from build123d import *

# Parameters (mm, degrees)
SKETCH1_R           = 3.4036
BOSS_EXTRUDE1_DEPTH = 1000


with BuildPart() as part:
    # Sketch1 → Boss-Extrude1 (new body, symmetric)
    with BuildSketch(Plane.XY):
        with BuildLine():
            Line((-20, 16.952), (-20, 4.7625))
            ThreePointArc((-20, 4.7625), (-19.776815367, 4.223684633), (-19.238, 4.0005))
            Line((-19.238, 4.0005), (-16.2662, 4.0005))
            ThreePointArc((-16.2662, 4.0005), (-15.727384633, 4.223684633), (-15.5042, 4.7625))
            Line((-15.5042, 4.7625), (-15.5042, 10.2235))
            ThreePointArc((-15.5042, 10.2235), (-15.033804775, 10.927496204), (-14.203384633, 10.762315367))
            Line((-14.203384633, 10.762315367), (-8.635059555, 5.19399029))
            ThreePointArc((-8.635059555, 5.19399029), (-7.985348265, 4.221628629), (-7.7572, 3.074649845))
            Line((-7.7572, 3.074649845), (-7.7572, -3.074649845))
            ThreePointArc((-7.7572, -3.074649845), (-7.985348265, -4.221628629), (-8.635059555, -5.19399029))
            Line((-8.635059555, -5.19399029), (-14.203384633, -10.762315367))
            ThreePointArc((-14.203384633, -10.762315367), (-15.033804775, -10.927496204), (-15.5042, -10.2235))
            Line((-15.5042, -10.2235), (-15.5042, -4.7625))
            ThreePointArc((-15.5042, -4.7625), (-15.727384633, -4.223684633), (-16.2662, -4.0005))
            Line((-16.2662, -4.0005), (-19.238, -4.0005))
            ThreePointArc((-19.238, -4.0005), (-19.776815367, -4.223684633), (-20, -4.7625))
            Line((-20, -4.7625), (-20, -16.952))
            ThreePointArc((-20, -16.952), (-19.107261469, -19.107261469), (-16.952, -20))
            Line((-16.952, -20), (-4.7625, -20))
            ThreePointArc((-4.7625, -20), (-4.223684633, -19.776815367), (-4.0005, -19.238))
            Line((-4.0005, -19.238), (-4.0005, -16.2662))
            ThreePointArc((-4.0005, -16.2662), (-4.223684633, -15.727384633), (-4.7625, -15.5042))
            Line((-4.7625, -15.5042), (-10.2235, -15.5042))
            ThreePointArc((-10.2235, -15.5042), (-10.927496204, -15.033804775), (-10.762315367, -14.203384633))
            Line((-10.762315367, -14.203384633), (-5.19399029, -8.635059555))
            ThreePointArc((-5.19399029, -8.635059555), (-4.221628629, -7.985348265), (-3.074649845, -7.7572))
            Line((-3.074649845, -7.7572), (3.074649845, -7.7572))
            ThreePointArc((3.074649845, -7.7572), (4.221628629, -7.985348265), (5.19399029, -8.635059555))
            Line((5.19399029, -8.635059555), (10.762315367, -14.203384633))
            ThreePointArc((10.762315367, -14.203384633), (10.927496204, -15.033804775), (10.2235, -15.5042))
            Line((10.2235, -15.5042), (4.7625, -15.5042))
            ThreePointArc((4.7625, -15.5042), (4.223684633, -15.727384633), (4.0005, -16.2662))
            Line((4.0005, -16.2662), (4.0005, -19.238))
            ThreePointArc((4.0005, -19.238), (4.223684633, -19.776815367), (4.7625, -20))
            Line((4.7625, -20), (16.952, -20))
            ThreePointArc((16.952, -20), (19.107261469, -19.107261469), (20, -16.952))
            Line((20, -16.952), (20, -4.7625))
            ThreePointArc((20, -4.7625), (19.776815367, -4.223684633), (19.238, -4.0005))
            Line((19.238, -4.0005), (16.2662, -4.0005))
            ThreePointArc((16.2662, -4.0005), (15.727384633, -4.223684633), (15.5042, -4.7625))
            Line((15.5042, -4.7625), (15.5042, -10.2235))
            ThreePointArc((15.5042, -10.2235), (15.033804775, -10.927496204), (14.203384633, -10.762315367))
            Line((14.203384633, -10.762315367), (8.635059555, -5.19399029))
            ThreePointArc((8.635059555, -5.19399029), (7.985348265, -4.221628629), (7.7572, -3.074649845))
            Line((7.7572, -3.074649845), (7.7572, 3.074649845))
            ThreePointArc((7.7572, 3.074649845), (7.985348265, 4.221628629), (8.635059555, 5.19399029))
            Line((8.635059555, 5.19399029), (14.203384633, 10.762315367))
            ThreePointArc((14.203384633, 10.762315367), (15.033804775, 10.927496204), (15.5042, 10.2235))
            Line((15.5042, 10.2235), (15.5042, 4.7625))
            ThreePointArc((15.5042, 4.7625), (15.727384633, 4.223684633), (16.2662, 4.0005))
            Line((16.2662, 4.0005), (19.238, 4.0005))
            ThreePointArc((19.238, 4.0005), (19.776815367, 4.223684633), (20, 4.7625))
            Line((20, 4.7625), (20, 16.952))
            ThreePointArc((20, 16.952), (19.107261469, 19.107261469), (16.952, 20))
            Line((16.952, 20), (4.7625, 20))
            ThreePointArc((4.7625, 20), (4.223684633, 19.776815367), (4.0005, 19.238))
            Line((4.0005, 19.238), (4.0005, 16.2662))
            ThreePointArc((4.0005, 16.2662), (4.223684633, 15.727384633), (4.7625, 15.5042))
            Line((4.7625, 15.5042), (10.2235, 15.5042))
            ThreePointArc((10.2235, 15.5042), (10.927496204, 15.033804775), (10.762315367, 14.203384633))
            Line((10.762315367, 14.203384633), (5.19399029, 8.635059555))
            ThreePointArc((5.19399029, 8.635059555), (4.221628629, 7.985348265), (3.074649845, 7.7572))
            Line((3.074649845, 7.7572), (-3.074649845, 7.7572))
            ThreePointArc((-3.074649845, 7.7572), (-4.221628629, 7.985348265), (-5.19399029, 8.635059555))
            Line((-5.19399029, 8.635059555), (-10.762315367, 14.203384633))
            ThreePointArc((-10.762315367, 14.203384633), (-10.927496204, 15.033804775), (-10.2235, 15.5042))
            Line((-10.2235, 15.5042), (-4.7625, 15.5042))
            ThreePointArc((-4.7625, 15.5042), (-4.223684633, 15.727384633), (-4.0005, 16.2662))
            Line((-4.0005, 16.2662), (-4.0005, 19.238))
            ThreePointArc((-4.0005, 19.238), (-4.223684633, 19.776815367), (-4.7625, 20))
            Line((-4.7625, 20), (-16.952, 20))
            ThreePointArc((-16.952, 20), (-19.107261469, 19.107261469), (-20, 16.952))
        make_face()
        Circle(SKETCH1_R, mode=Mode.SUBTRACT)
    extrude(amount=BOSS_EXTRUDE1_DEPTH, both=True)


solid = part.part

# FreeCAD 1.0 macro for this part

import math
import FreeCAD as App
import Part
import Sketcher
Q = App.Units.Quantity

doc = App.newDocument("Part")
body = doc.addObject("PartDesign::Body", "Body")

sketch1 = body.newObject("Sketcher::SketchObject", "Sketch")
sketch1.AttachmentSupport = (doc.getObject("XY_Plane"), [""])
sketch1.MapMode = "FlatFace"
sketch1.addGeometry(Part.LineSegment(App.Vector(-20, 17, 0), App.Vector(-20, 4.8, 0)), False)
sketch1.addGeometry(Part.ArcOfCircle(Part.Circle(App.Vector(-19.2, 4.8, 0), App.Vector(0, 0, 1), 0.8), math.radians(-180), math.radians(-90)), False)
sketch1.addGeometry(Part.LineSegment(App.Vector(-19.2, 4, 0), App.Vector(-16.3, 4, 0)), False)
sketch1.addGeometry(Part.ArcOfCircle(Part.Circle(App.Vector(-16.3, 4.8, 0), App.Vector(0, 0, 1), 0.8), math.radians(-90), math.radians(0)), False)
sketch1.addGeometry(Part.LineSegment(App.Vector(-15.5, 4.8, 0), App.Vector(-15.5, 10.2, 0)), False)
sketch1.addGeometry(Part.ArcOfCircle(Part.Circle(App.Vector(-14.7, 10.2, 0), App.Vector(0, 0, 1), 0.8), math.radians(45), math.radians(180)), False)
sketch1.addGeometry(Part.LineSegment(App.Vector(-14.2, 10.8, 0), App.Vector(-8.6, 5.2, 0)), False)
sketch1.addGeometry(Part.ArcOfCircle(Part.Circle(App.Vector(-10.8, 3.1, 0), App.Vector(0, 0, 1), 3), math.radians(0), math.radians(45)), False)
sketch1.addGeometry(Part.LineSegment(App.Vector(-7.8, 3.1, 0), App.Vector(-7.8, -3.1, 0)), False)
sketch1.addGeometry(Part.ArcOfCircle(Part.Circle(App.Vector(-10.8, -3.1, 0), App.Vector(0, 0, 1), 3), math.radians(-45), math.radians(0)), False)
sketch1.addGeometry(Part.LineSegment(App.Vector(-8.6, -5.2, 0), App.Vector(-14.2, -10.8, 0)), False)
sketch1.addGeometry(Part.ArcOfCircle(Part.Circle(App.Vector(-14.7, -10.2, 0), App.Vector(0, 0, 1), 0.8), math.radians(180), math.radians(315)), False)
sketch1.addGeometry(Part.LineSegment(App.Vector(-15.5, -10.2, 0), App.Vector(-15.5, -4.8, 0)), False)
sketch1.addGeometry(Part.ArcOfCircle(Part.Circle(App.Vector(-16.3, -4.8, 0), App.Vector(0, 0, 1), 0.8), math.radians(0), math.radians(90)), False)
sketch1.addGeometry(Part.LineSegment(App.Vector(-16.3, -4, 0), App.Vector(-19.2, -4, 0)), False)
sketch1.addGeometry(Part.ArcOfCircle(Part.Circle(App.Vector(-19.2, -4.8, 0), App.Vector(0, 0, 1), 0.8), math.radians(90), math.radians(180)), False)
sketch1.addGeometry(Part.LineSegment(App.Vector(-20, -4.8, 0), App.Vector(-20, -17, 0)), False)
sketch1.addGeometry(Part.ArcOfCircle(Part.Circle(App.Vector(-17, -17, 0), App.Vector(0, 0, 1), 3), math.radians(180), math.radians(270)), False)
sketch1.addGeometry(Part.LineSegment(App.Vector(-17, -20, 0), App.Vector(-4.8, -20, 0)), False)
sketch1.addGeometry(Part.ArcOfCircle(Part.Circle(App.Vector(-4.8, -19.2, 0), App.Vector(0, 0, 1), 0.8), math.radians(-90), math.radians(0)), False)
sketch1.addGeometry(Part.LineSegment(App.Vector(-4, -19.2, 0), App.Vector(-4, -16.3, 0)), False)
sketch1.addGeometry(Part.ArcOfCircle(Part.Circle(App.Vector(-4.8, -16.3, 0), App.Vector(0, 0, 1), 0.8), math.radians(0), math.radians(90)), False)
sketch1.addGeometry(Part.LineSegment(App.Vector(-4.8, -15.5, 0), App.Vector(-10.2, -15.5, 0)), False)
sketch1.addGeometry(Part.ArcOfCircle(Part.Circle(App.Vector(-10.2, -14.7, 0), App.Vector(0, 0, 1), 0.8), math.radians(135), math.radians(270)), False)
sketch1.addGeometry(Part.LineSegment(App.Vector(-10.8, -14.2, 0), App.Vector(-5.2, -8.6, 0)), False)
sketch1.addGeometry(Part.ArcOfCircle(Part.Circle(App.Vector(-3.1, -10.8, 0), App.Vector(0, 0, 1), 3), math.radians(90), math.radians(135)), False)
sketch1.addGeometry(Part.LineSegment(App.Vector(-3.1, -7.8, 0), App.Vector(3.1, -7.8, 0)), False)
sketch1.addGeometry(Part.ArcOfCircle(Part.Circle(App.Vector(3.1, -10.8, 0), App.Vector(0, 0, 1), 3), math.radians(45), math.radians(90)), False)
sketch1.addGeometry(Part.LineSegment(App.Vector(5.2, -8.6, 0), App.Vector(10.8, -14.2, 0)), False)
sketch1.addGeometry(Part.ArcOfCircle(Part.Circle(App.Vector(10.2, -14.7, 0), App.Vector(0, 0, 1), 0.8), math.radians(-90), math.radians(45)), False)
sketch1.addGeometry(Part.LineSegment(App.Vector(10.2, -15.5, 0), App.Vector(4.8, -15.5, 0)), False)
sketch1.addGeometry(Part.ArcOfCircle(Part.Circle(App.Vector(4.8, -16.3, 0), App.Vector(0, 0, 1), 0.8), math.radians(90), math.radians(180)), False)
sketch1.addGeometry(Part.LineSegment(App.Vector(4, -16.3, 0), App.Vector(4, -19.2, 0)), False)
sketch1.addGeometry(Part.ArcOfCircle(Part.Circle(App.Vector(4.8, -19.2, 0), App.Vector(0, 0, 1), 0.8), math.radians(-180), math.radians(-90)), False)
sketch1.addGeometry(Part.LineSegment(App.Vector(4.8, -20, 0), App.Vector(17, -20, 0)), False)
sketch1.addGeometry(Part.ArcOfCircle(Part.Circle(App.Vector(17, -17, 0), App.Vector(0, 0, 1), 3), math.radians(-90), math.radians(0)), False)
sketch1.addGeometry(Part.LineSegment(App.Vector(20, -17, 0), App.Vector(20, -4.8, 0)), False)
sketch1.addGeometry(Part.ArcOfCircle(Part.Circle(App.Vector(19.2, -4.8, 0), App.Vector(0, 0, 1), 0.8), math.radians(0), math.radians(90)), False)
sketch1.addGeometry(Part.LineSegment(App.Vector(19.2, -4, 0), App.Vector(16.3, -4, 0)), False)
sketch1.addGeometry(Part.ArcOfCircle(Part.Circle(App.Vector(16.3, -4.8, 0), App.Vector(0, 0, 1), 0.8), math.radians(90), math.radians(180)), False)
sketch1.addGeometry(Part.LineSegment(App.Vector(15.5, -4.8, 0), App.Vector(15.5, -10.2, 0)), False)
sketch1.addGeometry(Part.ArcOfCircle(Part.Circle(App.Vector(14.7, -10.2, 0), App.Vector(0, 0, 1), 0.8), math.radians(-135), math.radians(0)), False)
sketch1.addGeometry(Part.LineSegment(App.Vector(14.2, -10.8, 0), App.Vector(8.6, -5.2, 0)), False)
sketch1.addGeometry(Part.ArcOfCircle(Part.Circle(App.Vector(10.8, -3.1, 0), App.Vector(0, 0, 1), 3), math.radians(180), math.radians(225)), False)
sketch1.addGeometry(Part.LineSegment(App.Vector(7.8, -3.1, 0), App.Vector(7.8, 3.1, 0)), False)
sketch1.addGeometry(Part.ArcOfCircle(Part.Circle(App.Vector(10.8, 3.1, 0), App.Vector(0, 0, 1), 3), math.radians(135), math.radians(180)), False)
sketch1.addGeometry(Part.LineSegment(App.Vector(8.6, 5.2, 0), App.Vector(14.2, 10.8, 0)), False)
sketch1.addGeometry(Part.ArcOfCircle(Part.Circle(App.Vector(14.7, 10.2, 0), App.Vector(0, 0, 1), 0.8), math.radians(0), math.radians(135)), False)
sketch1.addGeometry(Part.LineSegment(App.Vector(15.5, 10.2, 0), App.Vector(15.5, 4.8, 0)), False)
sketch1.addGeometry(Part.ArcOfCircle(Part.Circle(App.Vector(16.3, 4.8, 0), App.Vector(0, 0, 1), 0.8), math.radians(-180), math.radians(-90)), False)
sketch1.addGeometry(Part.LineSegment(App.Vector(16.3, 4, 0), App.Vector(19.2, 4, 0)), False)
sketch1.addGeometry(Part.ArcOfCircle(Part.Circle(App.Vector(19.2, 4.8, 0), App.Vector(0, 0, 1), 0.8), math.radians(-90), math.radians(0)), False)
sketch1.addGeometry(Part.LineSegment(App.Vector(20, 4.8, 0), App.Vector(20, 17, 0)), False)
sketch1.addGeometry(Part.ArcOfCircle(Part.Circle(App.Vector(17, 17, 0), App.Vector(0, 0, 1), 3), math.radians(0), math.radians(90)), False)
sketch1.addGeometry(Part.LineSegment(App.Vector(17, 20, 0), App.Vector(4.8, 20, 0)), False)
sketch1.addGeometry(Part.ArcOfCircle(Part.Circle(App.Vector(4.8, 19.2, 0), App.Vector(0, 0, 1), 0.8), math.radians(90), math.radians(180)), False)
sketch1.addGeometry(Part.LineSegment(App.Vector(4, 19.2, 0), App.Vector(4, 16.3, 0)), False)
sketch1.addGeometry(Part.ArcOfCircle(Part.Circle(App.Vector(4.8, 16.3, 0), App.Vector(0, 0, 1), 0.8), math.radians(-180), math.radians(-90)), False)
sketch1.addGeometry(Part.LineSegment(App.Vector(4.8, 15.5, 0), App.Vector(10.2, 15.5, 0)), False)
sketch1.addGeometry(Part.ArcOfCircle(Part.Circle(App.Vector(10.2, 14.7, 0), App.Vector(0, 0, 1), 0.8), math.radians(-45), math.radians(90)), False)
sketch1.addGeometry(Part.LineSegment(App.Vector(10.8, 14.2, 0), App.Vector(5.2, 8.6, 0)), False)
sketch1.addGeometry(Part.ArcOfCircle(Part.Circle(App.Vector(3.1, 10.8, 0), App.Vector(0, 0, 1), 3), math.radians(-90), math.radians(-45)), False)
sketch1.addGeometry(Part.LineSegment(App.Vector(3.1, 7.8, 0), App.Vector(-3.1, 7.8, 0)), False)
sketch1.addGeometry(Part.ArcOfCircle(Part.Circle(App.Vector(-3.1, 10.8, 0), App.Vector(0, 0, 1), 3), math.radians(-135), math.radians(-90)), False)
sketch1.addGeometry(Part.LineSegment(App.Vector(-5.2, 8.6, 0), App.Vector(-10.8, 14.2, 0)), False)
sketch1.addGeometry(Part.ArcOfCircle(Part.Circle(App.Vector(-10.2, 14.7, 0), App.Vector(0, 0, 1), 0.8), math.radians(90), math.radians(225)), False)
sketch1.addGeometry(Part.LineSegment(App.Vector(-10.2, 15.5, 0), App.Vector(-4.8, 15.5, 0)), False)
sketch1.addGeometry(Part.ArcOfCircle(Part.Circle(App.Vector(-4.8, 16.3, 0), App.Vector(0, 0, 1), 0.8), math.radians(-90), math.radians(0)), False)
sketch1.addGeometry(Part.LineSegment(App.Vector(-4, 16.3, 0), App.Vector(-4, 19.2, 0)), False)
sketch1.addGeometry(Part.ArcOfCircle(Part.Circle(App.Vector(-4.8, 19.2, 0), App.Vector(0, 0, 1), 0.8), math.radians(0), math.radians(90)), False)
sketch1.addGeometry(Part.LineSegment(App.Vector(-4.8, 20, 0), App.Vector(-17, 20, 0)), False)
sketch1.addGeometry(Part.ArcOfCircle(Part.Circle(App.Vector(-17, 17, 0), App.Vector(0, 0, 1), 3), math.radians(90), math.radians(180)), False)
sketch1.addGeometry(Part.Circle(App.Vector(0, 0, 0), App.Vector(0, 0, 1), 3.4), False)
sketch1.addConstraint(Sketcher.Constraint("Tangent", 0, 2, 1, 1))
sketch1.addConstraint(Sketcher.Constraint("Tangent", 1, 2, 2, 1))
sketch1.addConstraint(Sketcher.Constraint("Tangent", 2, 2, 3, 1))
sketch1.addConstraint(Sketcher.Constraint("Tangent", 3, 2, 4, 1))
sketch1.addConstraint(Sketcher.Constraint("Tangent", 4, 2, 5, 2))
sketch1.addConstraint(Sketcher.Constraint("Tangent", 5, 1, 6, 1))
sketch1.addConstraint(Sketcher.Constraint("Tangent", 6, 2, 7, 2))
sketch1.addConstraint(Sketcher.Constraint("Tangent", 7, 1, 8, 1))
sketch1.addConstraint(Sketcher.Constraint("Tangent", 8, 2, 9, 2))
sketch1.addConstraint(Sketcher.Constraint("Tangent", 9, 1, 10, 1))
sketch1.addConstraint(Sketcher.Constraint("Tangent", 10, 2, 11, 2))
sketch1.addConstraint(Sketcher.Constraint("Tangent", 11, 1, 12, 1))
sketch1.addConstraint(Sketcher.Constraint("Tangent", 12, 2, 13, 1))
sketch1.addConstraint(Sketcher.Constraint("Tangent", 13, 2, 14, 1))
sketch1.addConstraint(Sketcher.Constraint("Tangent", 14, 2, 15, 1))
sketch1.addConstraint(Sketcher.Constraint("Tangent", 15, 2, 16, 1))
sketch1.addConstraint(Sketcher.Constraint("Tangent", 16, 2, 17, 1))
sketch1.addConstraint(Sketcher.Constraint("Tangent", 17, 2, 18, 1))
sketch1.addConstraint(Sketcher.Constraint("Tangent", 18, 2, 19, 1))
sketch1.addConstraint(Sketcher.Constraint("Tangent", 19, 2, 20, 1))
sketch1.addConstraint(Sketcher.Constraint("Tangent", 20, 2, 21, 1))
sketch1.addConstraint(Sketcher.Constraint("Tangent", 21, 2, 22, 1))
sketch1.addConstraint(Sketcher.Constraint("Tangent", 22, 2, 23, 2))
sketch1.addConstraint(Sketcher.Constraint("Tangent", 23, 1, 24, 1))
sketch1.addConstraint(Sketcher.Constraint("Tangent", 24, 2, 25, 2))
sketch1.addConstraint(Sketcher.Constraint("Tangent", 25, 1, 26, 1))
sketch1.addConstraint(Sketcher.Constraint("Tangent", 26, 2, 27, 2))
sketch1.addConstraint(Sketcher.Constraint("Tangent", 27, 1, 28, 1))
sketch1.addConstraint(Sketcher.Constraint("Tangent", 28, 2, 29, 2))
sketch1.addConstraint(Sketcher.Constraint("Tangent", 29, 1, 30, 1))
sketch1.addConstraint(Sketcher.Constraint("Tangent", 30, 2, 31, 1))
sketch1.addConstraint(Sketcher.Constraint("Tangent", 31, 2, 32, 1))
sketch1.addConstraint(Sketcher.Constraint("Tangent", 32, 2, 33, 1))
sketch1.addConstraint(Sketcher.Constraint("Tangent", 33, 2, 34, 1))
sketch1.addConstraint(Sketcher.Constraint("Tangent", 34, 2, 35, 1))
sketch1.addConstraint(Sketcher.Constraint("Tangent", 35, 2, 36, 1))
sketch1.addConstraint(Sketcher.Constraint("Tangent", 36, 2, 37, 1))
sketch1.addConstraint(Sketcher.Constraint("Tangent", 37, 2, 38, 1))
sketch1.addConstraint(Sketcher.Constraint("Tangent", 38, 2, 39, 1))
sketch1.addConstraint(Sketcher.Constraint("Tangent", 39, 2, 40, 1))
sketch1.addConstraint(Sketcher.Constraint("Tangent", 40, 2, 41, 2))
sketch1.addConstraint(Sketcher.Constraint("Tangent", 41, 1, 42, 1))
sketch1.addConstraint(Sketcher.Constraint("Tangent", 42, 2, 43, 2))
sketch1.addConstraint(Sketcher.Constraint("Tangent", 43, 1, 44, 1))
sketch1.addConstraint(Sketcher.Constraint("Tangent", 44, 2, 45, 2))
sketch1.addConstraint(Sketcher.Constraint("Tangent", 45, 1, 46, 1))
sketch1.addConstraint(Sketcher.Constraint("Tangent", 46, 2, 47, 2))
sketch1.addConstraint(Sketcher.Constraint("Tangent", 47, 1, 48, 1))
sketch1.addConstraint(Sketcher.Constraint("Tangent", 48, 2, 49, 1))
sketch1.addConstraint(Sketcher.Constraint("Tangent", 49, 2, 50, 1))
sketch1.addConstraint(Sketcher.Constraint("Tangent", 50, 2, 51, 1))
sketch1.addConstraint(Sketcher.Constraint("Tangent", 51, 2, 52, 1))
sketch1.addConstraint(Sketcher.Constraint("Tangent", 52, 2, 53, 1))
sketch1.addConstraint(Sketcher.Constraint("Tangent", 53, 2, 54, 1))
sketch1.addConstraint(Sketcher.Constraint("Tangent", 54, 2, 55, 1))
sketch1.addConstraint(Sketcher.Constraint("Tangent", 55, 2, 56, 1))
sketch1.addConstraint(Sketcher.Constraint("Tangent", 56, 2, 57, 1))
sketch1.addConstraint(Sketcher.Constraint("Tangent", 57, 2, 58, 1))
sketch1.addConstraint(Sketcher.Constraint("Tangent", 58, 2, 59, 2))
sketch1.addConstraint(Sketcher.Constraint("Tangent", 59, 1, 60, 1))
sketch1.addConstraint(Sketcher.Constraint("Tangent", 60, 2, 61, 2))
sketch1.addConstraint(Sketcher.Constraint("Tangent", 61, 1, 62, 1))
sketch1.addConstraint(Sketcher.Constraint("Tangent", 62, 2, 63, 2))
sketch1.addConstraint(Sketcher.Constraint("Tangent", 63, 1, 64, 1))
sketch1.addConstraint(Sketcher.Constraint("Tangent", 64, 2, 65, 2))
sketch1.addConstraint(Sketcher.Constraint("Tangent", 65, 1, 66, 1))
sketch1.addConstraint(Sketcher.Constraint("Tangent", 66, 2, 67, 1))
sketch1.addConstraint(Sketcher.Constraint("Tangent", 67, 2, 68, 1))
sketch1.addConstraint(Sketcher.Constraint("Tangent", 68, 2, 69, 1))
sketch1.addConstraint(Sketcher.Constraint("Tangent", 69, 2, 70, 1))
sketch1.addConstraint(Sketcher.Constraint("Tangent", 70, 2, 71, 1))
sketch1.addConstraint(Sketcher.Constraint("Tangent", 71, 2, 0, 1))
sketch1.addConstraint(Sketcher.Constraint("Vertical", 0))
sketch1.addConstraint(Sketcher.Constraint("Horizontal", 2))
sketch1.addConstraint(Sketcher.Constraint("Vertical", 4))
sketch1.addConstraint(Sketcher.Constraint("Vertical", 8))
sketch1.addConstraint(Sketcher.Constraint("Vertical", 12))
sketch1.addConstraint(Sketcher.Constraint("Horizontal", 14))
sketch1.addConstraint(Sketcher.Constraint("Vertical", 16))
sketch1.addConstraint(Sketcher.Constraint("Horizontal", 18))
sketch1.addConstraint(Sketcher.Constraint("Vertical", 20))
sketch1.addConstraint(Sketcher.Constraint("Horizontal", 22))
sketch1.addConstraint(Sketcher.Constraint("Horizontal", 26))
sketch1.addConstraint(Sketcher.Constraint("Horizontal", 30))
sketch1.addConstraint(Sketcher.Constraint("Vertical", 32))
sketch1.addConstraint(Sketcher.Constraint("Horizontal", 34))
sketch1.addConstraint(Sketcher.Constraint("Vertical", 36))
sketch1.addConstraint(Sketcher.Constraint("Horizontal", 38))
sketch1.addConstraint(Sketcher.Constraint("Vertical", 40))
sketch1.addConstraint(Sketcher.Constraint("Vertical", 44))
sketch1.addConstraint(Sketcher.Constraint("Vertical", 48))
sketch1.addConstraint(Sketcher.Constraint("Horizontal", 50))
sketch1.addConstraint(Sketcher.Constraint("Vertical", 52))
sketch1.addConstraint(Sketcher.Constraint("Horizontal", 54))
sketch1.addConstraint(Sketcher.Constraint("Vertical", 56))
sketch1.addConstraint(Sketcher.Constraint("Horizontal", 58))
sketch1.addConstraint(Sketcher.Constraint("Horizontal", 62))
sketch1.addConstraint(Sketcher.Constraint("Horizontal", 66))
sketch1.addConstraint(Sketcher.Constraint("Vertical", 68))
sketch1.addConstraint(Sketcher.Constraint("Horizontal", 70))
sketch1.addConstraint(Sketcher.Constraint("Coincident", 72, 3, -1, 1))
sketch1.addConstraint(Sketcher.Constraint("Equal", 1, 3))
sketch1.addConstraint(Sketcher.Constraint("Equal", 3, 5))
sketch1.addConstraint(Sketcher.Constraint("Equal", 7, 9))
sketch1.addConstraint(Sketcher.Constraint("Equal", 5, 11))
sketch1.addConstraint(Sketcher.Constraint("Equal", 11, 13))
sketch1.addConstraint(Sketcher.Constraint("Equal", 13, 15))
sketch1.addConstraint(Sketcher.Constraint("Equal", 15, 19))
sketch1.addConstraint(Sketcher.Constraint("Equal", 19, 21))
sketch1.addConstraint(Sketcher.Constraint("Equal", 21, 23))
sketch1.addConstraint(Sketcher.Constraint("Equal", 9, 25))
sketch1.addConstraint(Sketcher.Constraint("Equal", 25, 27))
sketch1.addConstraint(Sketcher.Constraint("Equal", 23, 29))
sketch1.addConstraint(Sketcher.Constraint("Equal", 29, 31))
sketch1.addConstraint(Sketcher.Constraint("Equal", 31, 33))
sketch1.addConstraint(Sketcher.Constraint("Equal", 17, 35))
sketch1.addConstraint(Sketcher.Constraint("Equal", 33, 37))
sketch1.addConstraint(Sketcher.Constraint("Equal", 37, 39))
sketch1.addConstraint(Sketcher.Constraint("Equal", 39, 41))
sketch1.addConstraint(Sketcher.Constraint("Equal", 27, 43))
sketch1.addConstraint(Sketcher.Constraint("Equal", 43, 45))
sketch1.addConstraint(Sketcher.Constraint("Equal", 41, 47))
sketch1.addConstraint(Sketcher.Constraint("Equal", 47, 49))
sketch1.addConstraint(Sketcher.Constraint("Equal", 49, 51))
sketch1.addConstraint(Sketcher.Constraint("Equal", 35, 53))
sketch1.addConstraint(Sketcher.Constraint("Equal", 51, 55))
sketch1.addConstraint(Sketcher.Constraint("Equal", 55, 57))
sketch1.addConstraint(Sketcher.Constraint("Equal", 57, 59))
sketch1.addConstraint(Sketcher.Constraint("Equal", 45, 61))
sketch1.addConstraint(Sketcher.Constraint("Equal", 61, 63))
sketch1.addConstraint(Sketcher.Constraint("Equal", 59, 65))
sketch1.addConstraint(Sketcher.Constraint("Equal", 65, 67))
sketch1.addConstraint(Sketcher.Constraint("Equal", 67, 69))
sketch1.addConstraint(Sketcher.Constraint("Equal", 53, 71))
sketch1.addConstraint(Sketcher.Constraint("Symmetric", 1, 3, 37, 3, -1, 1))
sketch1.addConstraint(Sketcher.Constraint("Symmetric", 5, 3, 41, 3, -1, 1))
sketch1.addConstraint(Sketcher.Constraint("Symmetric", 7, 3, 43, 3, -1, 1))
sketch1.addConstraint(Sketcher.Constraint("Symmetric", 11, 3, 47, 3, -1, 1))
sketch1.addConstraint(Sketcher.Constraint("Symmetric", 15, 3, 51, 3, -1, 1))
sketch1.addConstraint(Sketcher.Constraint("Symmetric", 19, 3, 55, 3, -1, 1))
sketch1.addConstraint(Sketcher.Constraint("Symmetric", 23, 3, 59, 3, -1, 1))
sketch1.addConstraint(Sketcher.Constraint("Symmetric", 25, 3, 61, 3, -1, 1))
sketch1.addConstraint(Sketcher.Constraint("Symmetric", 29, 3, 65, 3, -1, 1))
sketch1.addConstraint(Sketcher.Constraint("Symmetric", 33, 3, 69, 3, -1, 1))
sketch1.addConstraint(Sketcher.Constraint("Symmetric", 23, 3, 29, 3, -2))
sketch1.addConstraint(Sketcher.Constraint("Symmetric", 19, 3, 33, 3, -2))
sketch1.addConstraint(Sketcher.Constraint("Symmetric", 15, 3, 37, 3, -2))
sketch1.addConstraint(Sketcher.Constraint("Symmetric", 11, 3, 41, 3, -2))
sketch1.addConstraint(Sketcher.Constraint("Perpendicular", 6, 10))
sketch1.addConstraint(Sketcher.Constraint("Parallel", 10, 24))
sketch1.addConstraint(Sketcher.Constraint("Perpendicular", 24, 28))
sketch1.addConstraint(Sketcher.Constraint("Perpendicular", 42, 46))
sketch1.addConstraint(Sketcher.Constraint("Perpendicular", 60, 64))
sketch1.addConstraint(Sketcher.Constraint("Horizontal", 9, 3, 43, 3))
sketch1.addConstraint(Sketcher.Constraint("Equal", 70, 0))
sketch1.addConstraint(Sketcher.Constraint("Equal", 66, 4))
sketch1.addConstraint(Sketcher.Constraint("Equal", 62, 8))
sketch1.addConstraint(Sketcher.Constraint("Equal", 50, 20))
sketch1.addConstraint(Sketcher.Constraint("Equal", 10, 24))
sketch1.addConstraint(Sketcher.Constraint("Radius", 1, Q("0.03 in")))
sketch1.addConstraint(Sketcher.Constraint("Radius", 17, Q("0.12 in")))
sketch1.addConstraint(Sketcher.Constraint("Diameter", 72, Q("0.268 in")))
sketch1.addConstraint(Sketcher.Constraint("Radius", 7, Q("0.118 in")))
sketch1.addConstraint(Sketcher.Constraint("DistanceX", 2, 1, 2, 2, Q("0.117 in")))
sketch1.addConstraint(Sketcher.Constraint("DistanceX", 22, 2, 22, 1, Q("0.215 in")))
sketch1.addConstraint(Sketcher.Constraint("DistanceY", -1, 1, 1, 3, Q("0.1875 in")))
sketch1.addConstraint(Sketcher.Constraint("DistanceX", 18, 1, 18, 2, Q("12.1895 mm")))
sketch1.addConstraint(Sketcher.Constraint("DistanceX", 26, 1, 26, 2, Q("6.1493 mm")))
pad1 = body.newObject("PartDesign::Pad", "Pad")
pad1.Profile = sketch1
pad1.Length = 2000
pad1.Midplane = True

doc.recompute()
